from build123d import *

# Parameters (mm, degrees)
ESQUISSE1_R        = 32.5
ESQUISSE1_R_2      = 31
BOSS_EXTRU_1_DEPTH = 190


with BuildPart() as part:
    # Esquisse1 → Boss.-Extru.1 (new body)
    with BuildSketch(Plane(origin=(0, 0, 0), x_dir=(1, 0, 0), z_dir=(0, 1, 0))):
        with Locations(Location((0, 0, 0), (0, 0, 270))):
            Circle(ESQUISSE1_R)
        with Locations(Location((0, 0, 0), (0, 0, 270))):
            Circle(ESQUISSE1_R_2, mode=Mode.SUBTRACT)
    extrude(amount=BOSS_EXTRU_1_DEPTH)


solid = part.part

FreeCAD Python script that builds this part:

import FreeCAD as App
import Part
import Sketcher
from FreeCAD import Vector
Q = App.Units.Quantity

doc = App.newDocument("Part")
body = doc.addObject("PartDesign::Body", "Body")

# Sketch on XZ plane
sketch1 = body.newObject("Sketcher::SketchObject", "Sketch")
sketch1.AttachmentSupport = (doc.getObject("XZ_Plane"), [""])
sketch1.MapMode = "FlatFace"
sketch1.addGeometry([
    Part.Circle(Vector(0, 0, 0), Vector(0, 0, 1), 32),
    Part.Circle(Vector(0, 0, 0), Vector(0, 0, 1), 31),
], False)
sketch1.addConstraint([
    Sketcher.Constraint("Coincident", 0, 3, -1, 1),
    Sketcher.Constraint("Coincident", 1, 3, -1, 1),
    Sketcher.Constraint("Diameter", 0, Q("65 mm")),
    Sketcher.Constraint("Diameter", 1, Q("62 mm")),
])
pad1 = body.newObject("PartDesign::Pad", "Pad")
pad1.Profile = sketch1
pad1.Length = 190
pad1.Reversed = True

doc.recompute()
